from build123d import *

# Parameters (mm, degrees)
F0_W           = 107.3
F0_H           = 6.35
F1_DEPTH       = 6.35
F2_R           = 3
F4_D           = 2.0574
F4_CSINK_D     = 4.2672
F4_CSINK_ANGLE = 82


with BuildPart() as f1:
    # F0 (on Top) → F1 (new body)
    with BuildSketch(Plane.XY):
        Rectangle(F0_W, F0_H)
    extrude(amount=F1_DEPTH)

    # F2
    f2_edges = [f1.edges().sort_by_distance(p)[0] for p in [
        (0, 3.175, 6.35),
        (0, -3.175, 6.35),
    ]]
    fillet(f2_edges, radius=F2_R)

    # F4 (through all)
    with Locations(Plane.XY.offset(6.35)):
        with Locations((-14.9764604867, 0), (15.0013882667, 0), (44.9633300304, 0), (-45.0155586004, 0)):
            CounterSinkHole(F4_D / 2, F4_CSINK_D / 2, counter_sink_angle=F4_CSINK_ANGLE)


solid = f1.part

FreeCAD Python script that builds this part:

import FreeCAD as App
import Part
import Sketcher
from FreeCAD import Vector


def edges_at(feature, points):
    """Names of the edges that pass closest to the given points."""
    edges = feature.Shape.Edges
    near = lambda p: min(range(len(edges)), key=lambda i: edges[i].distToShape(Part.Vertex(*p))[0])
    return sorted({f"Edge{near(p) + 1}" for p in points})


def add_polygon(sketch, points):
    """Adds a closed chain of lines whose ends are joined by coincident constraints."""
    first, n = sketch.GeometryCount, len(points)
    for a, b in zip(points, points[1:] + points[:1]):
        sketch.addGeometry(Part.LineSegment(App.Vector(*a, 0), App.Vector(*b, 0)), False)
    for i in range(n):
        sketch.addConstraint(Sketcher.Constraint("Coincident", first + i, 2, first + (i + 1) % n, 1))

doc = App.newDocument("Part")
body = doc.addObject("PartDesign::Body", "Body")

sketch1 = doc.addObject("Sketcher::SketchObject", "Sketch")
body.addObject(sketch1)
sketch1.AttachmentSupport = (doc.XY_Plane, [""])
sketch1.MapMode = "FlatFace"
add_polygon(sketch1, [(-54, 3), (-54, -3), (54, -3), (54, 3)])
sketch1.addConstraint([
    Sketcher.Constraint("Vertical", 0),
    Sketcher.Constraint("Horizontal", 1),
    Sketcher.Constraint("Vertical", 2),
    Sketcher.Constraint("Horizontal", 3),
    Sketcher.Constraint("Symmetric", 0, 2, 2, 2, -1, 1),
    Sketcher.Constraint("DistanceX", 1, 1, 1, 2, 107.3),
    Sketcher.Constraint("DistanceY", 0, 2, 0, 1, 6.35),
])
pad1 = doc.addObject("PartDesign::Pad", "Pad")
body.addObject(pad1)
pad1.Profile = sketch1
pad1.Length = 6.35
doc.recompute()

fillet = doc.addObject("PartDesign::Fillet", "Fillet")
body.addObject(fillet)
fillet.Base = (pad1, edges_at(pad1, [(0, 3.175, 6.35), (0, -3.175, 6.35)]))
fillet.Radius = 3

sketch2 = doc.addObject("Sketcher::SketchObject", "Sketch001")
body.addObject(sketch2)
sketch2.AttachmentSupport = (doc.XY_Plane, [""])
sketch2.MapMode = "FlatFace"
sketch2.AttachmentOffset = App.Placement(Vector(0, 0, 6.35), App.Rotation())
sketch2.addGeometry([
    Part.Circle(Vector(-15, 0, 0), Vector(0, 0, 1), 1),
    Part.Circle(Vector(15, 0, 0), Vector(0, 0, 1), 1),
    Part.Circle(Vector(45, 0, 0), Vector(0, 0, 1), 1),
    Part.Circle(Vector(-45, 0, 0), Vector(0, 0, 1), 1),
], False)
sketch2.addConstraint([
    Sketcher.Constraint("Equal", 0, 1),
    Sketcher.Constraint("Equal", 1, 2),
    Sketcher.Constraint("Equal", 2, 3),
    Sketcher.Constraint("PointOnObject", 0, 3, -1),
    Sketcher.Constraint("PointOnObject", 1, 3, -1),
    Sketcher.Constraint("PointOnObject", 2, 3, -1),
    Sketcher.Constraint("PointOnObject", 3, 3, -1),
    Sketcher.Constraint("Diameter", 0, 2.0574),
    Sketcher.Constraint("DistanceX", 3, 3, 0, 3, 30.039098),
    Sketcher.Constraint("DistanceX", 0, 3, -1, 1, 14.97646),
    Sketcher.Constraint("DistanceX", -1, 1, 1, 3, 15.001388),
    Sketcher.Constraint("DistanceX", -1, 1, 2, 3, 44.96333),
])
doc.recompute()
hole = doc.addObject("PartDesign::Hole", "Hole")
body.addObject(hole)
hole.Profile = sketch2
hole.ThreadType = "None"
hole.Diameter = 2.0574
hole.DepthType = "ThroughAll"
hole.HoleCutType = "Countersink"
hole.HoleCutDiameter = 4.2672
hole.HoleCutCountersinkAngle = 82

doc.recompute()
